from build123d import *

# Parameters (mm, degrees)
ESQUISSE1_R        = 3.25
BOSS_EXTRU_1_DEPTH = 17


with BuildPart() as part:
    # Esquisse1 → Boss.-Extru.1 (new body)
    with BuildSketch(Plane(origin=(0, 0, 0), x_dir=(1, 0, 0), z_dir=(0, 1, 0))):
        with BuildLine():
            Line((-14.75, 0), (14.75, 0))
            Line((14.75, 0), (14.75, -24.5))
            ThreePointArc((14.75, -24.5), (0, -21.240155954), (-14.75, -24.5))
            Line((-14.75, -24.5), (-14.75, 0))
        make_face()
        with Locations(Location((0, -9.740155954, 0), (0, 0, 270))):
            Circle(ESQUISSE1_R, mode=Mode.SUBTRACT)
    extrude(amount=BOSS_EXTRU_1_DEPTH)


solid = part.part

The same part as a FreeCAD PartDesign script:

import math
import FreeCAD as App
import Part
import Sketcher
Q = App.Units.Quantity

doc = App.newDocument("Part")
params = doc.addObject("Spreadsheet::Sheet", "Params")
for row, (alias, value) in enumerate([
    ("sketch1_radius", "35 mm"),
    ("sketch1_diameter", "6.5 mm"),
    ("sketch1_width", "29.5 mm"),
    ("sketch1_height", "24.5 mm"),
    ("pad1_length", "17 mm"),
], start=1):
    params.set(f"A{row}", alias)
    params.set(f"B{row}", "=" + value)
    params.setAlias(f"B{row}", alias)

body = doc.addObject("PartDesign::Body", "Body")

# Sketch on XZ plane
sketch1 = body.newObject("Sketcher::SketchObject", "Sketch")
sketch1.AttachmentSupport = (doc.getObject("XZ_Plane"), [""])
sketch1.MapMode = "FlatFace"
sketch1.addGeometry([
    Part.LineSegment(App.Vector(14.8, 0, 0), App.Vector(-14.8, 0, 0)),  # 0
    Part.LineSegment(App.Vector(-14.8, 0, 0), App.Vector(-14.8, 24.5, 0)),  # 1
    Part.ArcOfCircle(Part.Circle(App.Vector(0, 56.2, 0), App.Vector(0, 0, 1), 35), math.radians(-115), math.radians(-65)),  # 2
    Part.LineSegment(App.Vector(14.8, 24.5, 0), App.Vector(14.8, 0, 0)),  # 3
    Part.Circle(App.Vector(0, 9.7, 0), App.Vector(0, 0, 1), 3.2),  # 4
], False)
sketch1.addConstraint([
    Sketcher.Constraint("Coincident", 0, 2, 1, 1),
    Sketcher.Constraint("Coincident", 1, 2, 2, 1),
    Sketcher.Constraint("Coincident", 2, 2, 3, 1),
    Sketcher.Constraint("Coincident", 3, 2, 0, 1),
    Sketcher.Constraint("Horizontal", 0),
    Sketcher.Constraint("Vertical", 1),
    Sketcher.Constraint("Vertical", 3),
    Sketcher.Constraint("Symmetric", 0, 2, 3, 2, -1, 1),
    Sketcher.Constraint("PointOnObject", 2, 3, -2),
    Sketcher.Constraint("PointOnObject", 4, 3, -2),
    Sketcher.Constraint("Radius", 2, Q("35 mm")),
    Sketcher.Constraint("Diameter", 4, Q("6.5 mm")),
    Sketcher.Constraint("DistanceX", 0, 2, 0, 1, Q("29.5 mm")),
    Sketcher.Constraint("DistanceY", 1, 1, 1, 2, Q("24.5 mm")),
    Sketcher.Constraint("DistanceY", 4, 3, 2, 3, Q("46.5 mm")),
])
sketch1.setExpression("Constraints[10]", "Params.sketch1_radius")
sketch1.setExpression("Constraints[11]", "Params.sketch1_diameter")
sketch1.setExpression("Constraints[12]", "Params.sketch1_width")
sketch1.setExpression("Constraints[13]", "Params.sketch1_height")
pad1 = body.newObject("PartDesign::Pad", "Pad")
pad1.Profile = sketch1
pad1.setExpression("Length", "Params.pad1_length")
pad1.Reversed = True

doc.recompute()
